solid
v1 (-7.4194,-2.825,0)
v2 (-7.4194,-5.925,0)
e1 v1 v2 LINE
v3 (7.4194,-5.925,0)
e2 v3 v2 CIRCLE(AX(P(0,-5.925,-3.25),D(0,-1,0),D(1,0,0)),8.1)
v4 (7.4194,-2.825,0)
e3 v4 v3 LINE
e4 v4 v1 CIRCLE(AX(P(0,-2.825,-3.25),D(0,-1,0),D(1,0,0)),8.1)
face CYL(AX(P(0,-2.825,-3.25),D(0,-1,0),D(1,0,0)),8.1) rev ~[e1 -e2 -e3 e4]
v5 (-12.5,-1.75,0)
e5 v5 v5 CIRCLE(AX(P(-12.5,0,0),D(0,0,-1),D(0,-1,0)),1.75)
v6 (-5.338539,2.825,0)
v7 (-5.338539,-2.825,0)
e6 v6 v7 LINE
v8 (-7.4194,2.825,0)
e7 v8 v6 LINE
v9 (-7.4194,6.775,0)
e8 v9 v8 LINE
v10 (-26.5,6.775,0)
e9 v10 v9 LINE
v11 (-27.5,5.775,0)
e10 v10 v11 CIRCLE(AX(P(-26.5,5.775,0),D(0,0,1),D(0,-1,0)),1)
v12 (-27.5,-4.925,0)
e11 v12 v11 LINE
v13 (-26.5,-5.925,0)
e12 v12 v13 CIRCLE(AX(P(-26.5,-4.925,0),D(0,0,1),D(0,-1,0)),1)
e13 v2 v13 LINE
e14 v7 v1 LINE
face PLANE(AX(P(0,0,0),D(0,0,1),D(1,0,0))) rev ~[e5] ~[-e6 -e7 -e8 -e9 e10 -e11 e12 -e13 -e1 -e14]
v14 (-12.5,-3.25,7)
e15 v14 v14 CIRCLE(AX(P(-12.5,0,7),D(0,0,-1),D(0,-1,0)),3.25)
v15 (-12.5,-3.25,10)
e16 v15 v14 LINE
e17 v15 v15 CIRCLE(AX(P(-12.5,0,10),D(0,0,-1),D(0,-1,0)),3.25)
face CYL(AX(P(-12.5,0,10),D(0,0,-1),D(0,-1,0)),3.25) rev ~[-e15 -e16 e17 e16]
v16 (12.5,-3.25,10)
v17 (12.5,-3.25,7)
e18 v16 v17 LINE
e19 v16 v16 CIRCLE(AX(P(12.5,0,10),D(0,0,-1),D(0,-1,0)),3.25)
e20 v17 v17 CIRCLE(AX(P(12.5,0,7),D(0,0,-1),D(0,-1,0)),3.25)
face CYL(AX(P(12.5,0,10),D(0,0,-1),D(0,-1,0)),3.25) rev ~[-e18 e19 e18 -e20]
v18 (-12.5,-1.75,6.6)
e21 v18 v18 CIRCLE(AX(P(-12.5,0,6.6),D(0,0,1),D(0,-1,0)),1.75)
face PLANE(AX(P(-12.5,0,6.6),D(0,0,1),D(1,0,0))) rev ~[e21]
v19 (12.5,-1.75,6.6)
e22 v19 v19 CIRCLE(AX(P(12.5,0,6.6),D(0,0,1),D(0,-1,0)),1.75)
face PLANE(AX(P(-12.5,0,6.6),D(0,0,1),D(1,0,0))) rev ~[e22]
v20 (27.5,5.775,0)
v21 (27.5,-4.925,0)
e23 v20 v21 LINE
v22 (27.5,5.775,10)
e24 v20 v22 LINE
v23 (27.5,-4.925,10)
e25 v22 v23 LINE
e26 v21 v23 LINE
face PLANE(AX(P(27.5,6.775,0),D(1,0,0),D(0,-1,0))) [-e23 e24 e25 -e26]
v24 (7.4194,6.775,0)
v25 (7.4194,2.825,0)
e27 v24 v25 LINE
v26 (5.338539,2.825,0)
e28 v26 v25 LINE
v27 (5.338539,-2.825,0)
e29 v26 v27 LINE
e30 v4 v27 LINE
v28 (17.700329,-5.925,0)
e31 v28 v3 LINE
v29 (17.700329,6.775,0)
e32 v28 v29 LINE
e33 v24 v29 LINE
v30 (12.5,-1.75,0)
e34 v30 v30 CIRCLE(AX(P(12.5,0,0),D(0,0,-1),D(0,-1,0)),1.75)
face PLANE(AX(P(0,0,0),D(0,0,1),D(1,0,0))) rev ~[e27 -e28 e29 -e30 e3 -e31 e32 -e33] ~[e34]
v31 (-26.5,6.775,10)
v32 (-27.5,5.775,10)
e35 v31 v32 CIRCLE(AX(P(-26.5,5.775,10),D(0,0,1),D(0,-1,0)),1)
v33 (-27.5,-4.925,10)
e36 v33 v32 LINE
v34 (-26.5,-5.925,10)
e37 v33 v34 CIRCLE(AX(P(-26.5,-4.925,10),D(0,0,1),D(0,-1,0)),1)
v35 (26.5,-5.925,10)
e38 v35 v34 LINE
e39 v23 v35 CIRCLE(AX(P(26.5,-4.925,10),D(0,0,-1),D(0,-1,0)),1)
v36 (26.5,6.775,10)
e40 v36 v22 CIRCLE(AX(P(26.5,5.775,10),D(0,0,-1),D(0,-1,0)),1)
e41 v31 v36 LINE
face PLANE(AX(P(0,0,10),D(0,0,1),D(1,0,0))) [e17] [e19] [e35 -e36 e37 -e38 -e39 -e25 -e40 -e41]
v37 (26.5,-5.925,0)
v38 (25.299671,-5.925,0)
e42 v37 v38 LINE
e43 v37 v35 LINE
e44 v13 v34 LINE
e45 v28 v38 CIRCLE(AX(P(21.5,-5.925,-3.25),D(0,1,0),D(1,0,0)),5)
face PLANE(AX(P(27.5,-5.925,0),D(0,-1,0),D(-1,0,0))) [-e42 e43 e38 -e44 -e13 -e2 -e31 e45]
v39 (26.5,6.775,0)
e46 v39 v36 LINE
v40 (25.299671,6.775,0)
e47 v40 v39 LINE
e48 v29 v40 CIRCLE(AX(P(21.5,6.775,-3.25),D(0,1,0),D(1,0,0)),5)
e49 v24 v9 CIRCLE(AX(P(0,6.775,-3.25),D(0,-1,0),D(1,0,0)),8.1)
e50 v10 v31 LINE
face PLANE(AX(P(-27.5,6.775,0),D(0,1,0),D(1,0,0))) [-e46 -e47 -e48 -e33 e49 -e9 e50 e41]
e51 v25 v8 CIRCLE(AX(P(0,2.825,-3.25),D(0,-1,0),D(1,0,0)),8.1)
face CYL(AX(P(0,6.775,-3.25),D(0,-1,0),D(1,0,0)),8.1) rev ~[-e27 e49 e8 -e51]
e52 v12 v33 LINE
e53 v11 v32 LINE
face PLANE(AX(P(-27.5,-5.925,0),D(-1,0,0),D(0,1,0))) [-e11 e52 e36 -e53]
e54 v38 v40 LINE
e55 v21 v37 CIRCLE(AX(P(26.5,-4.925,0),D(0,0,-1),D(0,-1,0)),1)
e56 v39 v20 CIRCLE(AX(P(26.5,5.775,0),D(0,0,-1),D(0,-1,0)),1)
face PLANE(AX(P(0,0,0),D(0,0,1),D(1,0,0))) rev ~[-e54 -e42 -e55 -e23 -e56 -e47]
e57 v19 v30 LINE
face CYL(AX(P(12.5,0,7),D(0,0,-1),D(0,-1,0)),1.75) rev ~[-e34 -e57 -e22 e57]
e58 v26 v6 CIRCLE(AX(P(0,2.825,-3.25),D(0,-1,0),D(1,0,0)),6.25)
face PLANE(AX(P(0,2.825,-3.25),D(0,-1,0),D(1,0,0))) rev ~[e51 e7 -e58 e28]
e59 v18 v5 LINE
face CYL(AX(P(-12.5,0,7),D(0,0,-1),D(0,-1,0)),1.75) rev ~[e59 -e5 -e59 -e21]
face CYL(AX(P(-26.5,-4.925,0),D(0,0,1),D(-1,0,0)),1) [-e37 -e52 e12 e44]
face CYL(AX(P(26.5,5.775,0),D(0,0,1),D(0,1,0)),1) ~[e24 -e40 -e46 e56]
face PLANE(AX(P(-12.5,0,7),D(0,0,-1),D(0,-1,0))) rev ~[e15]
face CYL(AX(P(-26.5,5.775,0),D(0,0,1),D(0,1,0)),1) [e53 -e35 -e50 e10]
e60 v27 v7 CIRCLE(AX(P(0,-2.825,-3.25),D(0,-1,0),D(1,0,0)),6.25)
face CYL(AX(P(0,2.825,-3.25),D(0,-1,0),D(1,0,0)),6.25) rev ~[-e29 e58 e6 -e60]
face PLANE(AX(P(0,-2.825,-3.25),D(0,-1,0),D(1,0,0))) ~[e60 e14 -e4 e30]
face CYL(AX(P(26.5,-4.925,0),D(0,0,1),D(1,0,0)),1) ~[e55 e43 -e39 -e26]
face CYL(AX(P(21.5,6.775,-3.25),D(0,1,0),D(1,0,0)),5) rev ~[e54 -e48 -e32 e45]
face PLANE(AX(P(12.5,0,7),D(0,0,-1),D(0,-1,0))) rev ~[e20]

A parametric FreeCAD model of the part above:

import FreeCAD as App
import Part
import Sketcher


def edges_at(feature, points):
    """Names of the edges that pass closest to the given points."""
    edges = feature.Shape.Edges
    near = lambda p: min(range(len(edges)), key=lambda i: edges[i].distToShape(Part.Vertex(*p))[0])
    return sorted({f"Edge{near(p) + 1}" for p in points})

doc = App.newDocument("Part")
body = doc.addObject("PartDesign::Body", "Body")

sketch1 = body.newObject("Sketcher::SketchObject", "Sketch")
sketch1.AttachmentSupport = (doc.getObject("XY_Plane"), [""])
sketch1.MapMode = "FlatFace"
sketch1.addGeometry([
    Part.LineSegment(App.Vector(28, 7, 0), App.Vector(-28, 7, 0)),
    Part.LineSegment(App.Vector(-28, 7, 0), App.Vector(-28, -6, 0)),
    Part.LineSegment(App.Vector(-28, -6, 0), App.Vector(28, -6, 0)),
    Part.LineSegment(App.Vector(28, -6, 0), App.Vector(28, 7, 0)),
], False)
sketch1.addConstraint([
    Sketcher.Constraint("Coincident", 0, 2, 1, 1),
    Sketcher.Constraint("Coincident", 1, 2, 2, 1),
    Sketcher.Constraint("Coincident", 2, 2, 3, 1),
    Sketcher.Constraint("Coincident", 3, 2, 0, 1),
    Sketcher.Constraint("Horizontal", 0),
    Sketcher.Constraint("Vertical", 1),
    Sketcher.Constraint("Horizontal", 2),
    Sketcher.Constraint("Vertical", 3),
    Sketcher.Constraint("DistanceX", 0, 2, -1, 1, 27.5),
    Sketcher.Constraint("DistanceX", -1, 1, 2, 2, 27.5),
    Sketcher.Constraint("DistanceY", 1, 2, 1, 1, 12.7),
    Sketcher.Constraint("DistanceY", -1, 1, 0, 2, 6.775),
])
pad1 = body.newObject("PartDesign::Pad", "Pad")
pad1.Profile = sketch1
pad1.Length = 10

sketch2 = body.newObject("Sketcher::SketchObject", "Sketch001")
sketch2.AttachmentSupport = (doc.getObject("XY_Plane"), [""])
sketch2.MapMode = "FlatFace"
sketch2.AttachmentOffset = App.Placement(App.Vector(0, 0, -3.25), App.Rotation())
sketch2.addGeometry([
    Part.LineSegment(App.Vector(0, -5.9, 0), App.Vector(0, 6.8, 0)),
    Part.LineSegment(App.Vector(0, 6.8, 0), App.Vector(8.1, 6.8, 0)),
    Part.LineSegment(App.Vector(8.1, 6.8, 0), App.Vector(8.1, 2.8, 0)),
    Part.LineSegment(App.Vector(8.1, 2.8, 0), App.Vector(6.2, 2.8, 0)),
    Part.LineSegment(App.Vector(6.2, 2.8, 0), App.Vector(6.2, -2.8, 0)),
    Part.LineSegment(App.Vector(6.2, -2.8, 0), App.Vector(8.1, -2.8, 0)),
    Part.LineSegment(App.Vector(8.1, -2.8, 0), App.Vector(8.1, -5.9, 0)),
    Part.LineSegment(App.Vector(8.1, -5.9, 0), App.Vector(0, -5.9, 0)),
], False)
sketch2.addConstraint([
    Sketcher.Constraint("Coincident", 0, 2, 1, 1),
    Sketcher.Constraint("Coincident", 1, 2, 2, 1),
    Sketcher.Constraint("Coincident", 2, 2, 3, 1),
    Sketcher.Constraint("Coincident", 3, 2, 4, 1),
    Sketcher.Constraint("Coincident", 4, 2, 5, 1),
    Sketcher.Constraint("Coincident", 5, 2, 6, 1),
    Sketcher.Constraint("Coincident", 6, 2, 7, 1),
    Sketcher.Constraint("Coincident", 7, 2, 0, 1),
    Sketcher.Constraint("Vertical", 0),
    Sketcher.Constraint("Horizontal", 1),
    Sketcher.Constraint("Vertical", 2),
    Sketcher.Constraint("Horizontal", 3),
    Sketcher.Constraint("Vertical", 4),
    Sketcher.Constraint("Horizontal", 5),
    Sketcher.Constraint("Vertical", 6),
    Sketcher.Constraint("Horizontal", 7),
    Sketcher.Constraint("Symmetric", 2, 2, 5, 2, -1),
    Sketcher.Constraint("PointOnObject", 0, 2, -2),
    Sketcher.Constraint("DistanceX", 1, 1, 1, 2, 8.1),
    Sketcher.Constraint("DistanceY", 6, 2, 6, 1, 3.1),
    Sketcher.Constraint("DistanceY", 2, 2, 2, 1, 3.95),
    Sketcher.Constraint("DistanceX", -1, 1, 3, 2, 6.25),
    Sketcher.Constraint("DistanceY", 0, 1, 0, 2, 12.7),
])
groove = body.newObject("PartDesign::Groove", "Groove")
groove.Profile = sketch2
groove.ReferenceAxis = (sketch2, ["V_Axis"])
groove.Angle = 180
groove.Reversed = True

sketch3 = body.newObject("Sketcher::SketchObject", "Sketch002")
sketch3.AttachmentSupport = (doc.getObject("XY_Plane"), [""])
sketch3.MapMode = "FlatFace"
sketch3.AttachmentOffset = App.Placement(App.Vector(0, 0, 10), App.Rotation())
sketch3.addGeometry([
    Part.Circle(App.Vector(-12.5, 0, 0), App.Vector(0, 0, 1), 1.8),
    Part.Circle(App.Vector(12.5, 0, 0), App.Vector(0, 0, 1), 1.8),
], False)
sketch3.addConstraint([
    Sketcher.Constraint("Equal", 0, 1),
    Sketcher.Constraint("Symmetric", 0, 3, 1, 3, -1, 1),
    Sketcher.Constraint("PointOnObject", 0, 3, -1),
    Sketcher.Constraint("Diameter", 0, 3.5),
    Sketcher.Constraint("DistanceX", 0, 3, 1, 3, 25.0),
])
doc.recompute()
hole = body.newObject("PartDesign::Hole", "Hole")
hole.Profile = sketch3
hole.ThreadType = "None"
hole.Diameter = 3.5
hole.DepthType = "ThroughAll"
hole.HoleCutType = "Counterbore"
hole.HoleCutDiameter = 6.5
hole.HoleCutDepth = 3

sketch4 = body.newObject("Sketcher::SketchObject", "Sketch003")
sketch4.AttachmentSupport = (doc.getObject("XZ_Plane"), [""])
sketch4.MapMode = "FlatFace"
sketch4.AttachmentOffset = App.Placement(App.Vector(0, 0, -6.775), App.Rotation())
sketch4.addGeometry(Part.Circle(App.Vector(22, -3, 0), App.Vector(0, 0, 1), 5), False)
sketch4.addConstraint([
    Sketcher.Constraint("Diameter", 0, 10.0),
    Sketcher.Constraint("DistanceX", -1, 1, 0, 3, 21.5),
    Sketcher.Constraint("DistanceY", 0, 3, -1, 1, 3.25),
])
pocket1 = body.newObject("PartDesign::Pocket", "Pocket")
pocket1.Profile = sketch4
pocket1.Type = "ThroughAll"
pocket1.Reversed = True

sketch5 = body.newObject("Sketcher::SketchObject", "Sketch004")
sketch5.AttachmentSupport = (doc.getObject("XY_Plane"), [""])
sketch5.MapMode = "FlatFace"
sketch5.AttachmentOffset = App.Placement(App.Vector(0, 0, 7), App.Rotation())
sketch5.addGeometry([
    Part.Circle(App.Vector(-12.5, 0, 0), App.Vector(0, 0, 1), 1.8),
    Part.Circle(App.Vector(12.5, 0, 0), App.Vector(0, 0, 1), 1.8),
], False)
sketch5.addConstraint([
    Sketcher.Constraint("Equal", 0, 1),
    Sketcher.Constraint("Symmetric", 0, 3, 1, 3, -1, 1),
    Sketcher.Constraint("PointOnObject", 0, 3, -1),
    Sketcher.Constraint("Diameter", 0, 3.5),
    Sketcher.Constraint("DistanceX", 0, 3, 1, 3, 25.0),
])
pad2 = body.newObject("PartDesign::Pad", "Pad001")
pad2.Profile = sketch5
pad2.Length = 0.4
pad2.Reversed = True
doc.recompute()

fillet = body.newObject("PartDesign::Fillet", "Fillet")
fillet.Base = (pad2, edges_at(pad2, [
    (-27.5, 6.775, 5),
    (-27.5, -5.925, 5),
    (27.5, 6.775, 5),
    (27.5, -5.925, 5),
]))
fillet.Radius = 1

doc.recompute()
